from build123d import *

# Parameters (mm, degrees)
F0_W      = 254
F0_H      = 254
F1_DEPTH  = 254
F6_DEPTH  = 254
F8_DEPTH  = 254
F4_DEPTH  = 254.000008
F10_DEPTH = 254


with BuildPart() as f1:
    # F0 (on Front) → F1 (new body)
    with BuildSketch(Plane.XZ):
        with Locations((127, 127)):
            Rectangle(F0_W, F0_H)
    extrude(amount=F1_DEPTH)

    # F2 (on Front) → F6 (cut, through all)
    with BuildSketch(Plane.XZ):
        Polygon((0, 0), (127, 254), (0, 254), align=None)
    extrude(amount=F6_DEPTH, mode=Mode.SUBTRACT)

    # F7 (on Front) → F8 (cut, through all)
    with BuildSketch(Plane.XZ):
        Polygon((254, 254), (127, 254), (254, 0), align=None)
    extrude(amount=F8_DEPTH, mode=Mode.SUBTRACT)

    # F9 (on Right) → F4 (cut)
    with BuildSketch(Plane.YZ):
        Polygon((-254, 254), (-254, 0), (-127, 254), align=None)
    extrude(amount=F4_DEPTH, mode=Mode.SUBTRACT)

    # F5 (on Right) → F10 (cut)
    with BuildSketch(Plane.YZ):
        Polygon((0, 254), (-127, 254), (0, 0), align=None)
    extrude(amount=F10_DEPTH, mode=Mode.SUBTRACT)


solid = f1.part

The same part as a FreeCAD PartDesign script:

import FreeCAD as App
import Part
import Sketcher
Q = App.Units.Quantity

doc = App.newDocument("Part")
params = doc.addObject("Spreadsheet::Sheet", "Params")
for row, (alias, value) in enumerate([
    ("sketch1_width", "10 in"),
    ("pad1_length", "10 in"),
    ("sketch2_width", "5 in"),
    ("sketch2_height", "10 in"),
    ("sketch3_width", "5 in"),
    ("sketch3_height", "10 in"),
    ("sketch4_width", "5 in"),
    ("sketch4_height", "10 in"),
    ("pocket3_length", "254.000008 mm"),
    ("sketch5_width", "5 in"),
    ("sketch5_height", "10 in"),
    ("pocket4_length", "10 in"),
], start=1):
    params.set(f"A{row}", alias)
    params.set(f"B{row}", "=" + value)
    params.setAlias(f"B{row}", alias)

body = doc.addObject("PartDesign::Body", "Body")

sketch1 = body.newObject("Sketcher::SketchObject", "Sketch")
sketch1.AttachmentSupport = (doc.getObject("XZ_Plane"), [""])
sketch1.MapMode = "FlatFace"
sketch1.addGeometry(Part.LineSegment(App.Vector(0, 254, 0), App.Vector(0, 0, 0)), False)
sketch1.addGeometry(Part.LineSegment(App.Vector(0, 0, 0), App.Vector(254, 0, 0)), False)
sketch1.addGeometry(Part.LineSegment(App.Vector(254, 0, 0), App.Vector(254, 254, 0)), False)
sketch1.addGeometry(Part.LineSegment(App.Vector(254, 254, 0), App.Vector(0, 254, 0)), False)
sketch1.addConstraint(Sketcher.Constraint("Coincident", 0, 2, 1, 1))
sketch1.addConstraint(Sketcher.Constraint("Coincident", 1, 2, 2, 1))
sketch1.addConstraint(Sketcher.Constraint("Coincident", 2, 2, 3, 1))
sketch1.addConstraint(Sketcher.Constraint("Coincident", 3, 2, 0, 1))
sketch1.addConstraint(Sketcher.Constraint("Vertical", 0))
sketch1.addConstraint(Sketcher.Constraint("Horizontal", 1))
sketch1.addConstraint(Sketcher.Constraint("Vertical", 2))
sketch1.addConstraint(Sketcher.Constraint("Horizontal", 3))
sketch1.addConstraint(Sketcher.Constraint("Coincident", 0, 2, -1, 1))
sketch1.addConstraint(Sketcher.Constraint("Equal", 3, 0))
sketch1.addConstraint(Sketcher.Constraint("DistanceX", 1, 1, 1, 2, Q("10 in")))
sketch1.setExpression("Constraints[10]", "Params.sketch1_width")
pad1 = body.newObject("PartDesign::Pad", "Pad")
pad1.Profile = sketch1
pad1.setExpression("Length", "Params.pad1_length")

sketch2 = body.newObject("Sketcher::SketchObject", "Sketch001")
sketch2.AttachmentSupport = (doc.getObject("XZ_Plane"), [""])
sketch2.MapMode = "FlatFace"
sketch2.addGeometry(Part.LineSegment(App.Vector(0, 0, 0), App.Vector(127, 254, 0)), False)
sketch2.addGeometry(Part.LineSegment(App.Vector(127, 254, 0), App.Vector(0, 254, 0)), False)
sketch2.addGeometry(Part.LineSegment(App.Vector(0, 254, 0), App.Vector(0, 0, 0)), False)
sketch2.addConstraint(Sketcher.Constraint("Coincident", 0, 2, 1, 1))
sketch2.addConstraint(Sketcher.Constraint("Coincident", 1, 2, 2, 1))
sketch2.addConstraint(Sketcher.Constraint("Coincident", 2, 2, 0, 1))
sketch2.addConstraint(Sketcher.Constraint("Horizontal", 1))
sketch2.addConstraint(Sketcher.Constraint("Vertical", 2))
sketch2.addConstraint(Sketcher.Constraint("Coincident", 2, 2, -1, 1))
sketch2.addConstraint(Sketcher.Constraint("DistanceX", 1, 2, 1, 1, Q("5 in")))
sketch2.addConstraint(Sketcher.Constraint("DistanceY", 2, 2, 2, 1, Q("10 in")))
sketch2.setExpression("Constraints[6]", "Params.sketch2_width")
sketch2.setExpression("Constraints[7]", "Params.sketch2_height")
pocket1 = body.newObject("PartDesign::Pocket", "Pocket")
pocket1.Profile = sketch2
pocket1.Type = "ThroughAll"
pocket1.Reversed = True

sketch3 = body.newObject("Sketcher::SketchObject", "Sketch002")
sketch3.AttachmentSupport = (doc.getObject("XZ_Plane"), [""])
sketch3.MapMode = "FlatFace"
sketch3.addGeometry(Part.LineSegment(App.Vector(254, 254, 0), App.Vector(127, 254, 0)), False)
sketch3.addGeometry(Part.LineSegment(App.Vector(127, 254, 0), App.Vector(254, 0, 0)), False)
sketch3.addGeometry(Part.LineSegment(App.Vector(254, 0, 0), App.Vector(254, 254, 0)), False)
sketch3.addConstraint(Sketcher.Constraint("Coincident", 0, 2, 1, 1))
sketch3.addConstraint(Sketcher.Constraint("Coincident", 1, 2, 2, 1))
sketch3.addConstraint(Sketcher.Constraint("Coincident", 2, 2, 0, 1))
sketch3.addConstraint(Sketcher.Constraint("Horizontal", 0))
sketch3.addConstraint(Sketcher.Constraint("Vertical", 2))
sketch3.addConstraint(Sketcher.Constraint("PointOnObject", 1, 2, -1))
sketch3.addConstraint(Sketcher.Constraint("DistanceX", 0, 2, 0, 1, Q("5 in")))
sketch3.addConstraint(Sketcher.Constraint("DistanceY", 2, 1, 2, 2, Q("10 in")))
sketch3.addConstraint(Sketcher.Constraint("DistanceX", -1, 1, 0, 2, Q("5 in")))
sketch3.setExpression("Constraints[6]", "Params.sketch3_width")
sketch3.setExpression("Constraints[7]", "Params.sketch3_height")
pocket2 = body.newObject("PartDesign::Pocket", "Pocket001")
pocket2.Profile = sketch3
pocket2.Type = "ThroughAll"
pocket2.Reversed = True

sketch4 = body.newObject("Sketcher::SketchObject", "Sketch003")
sketch4.AttachmentSupport = (doc.getObject("YZ_Plane"), [""])
sketch4.MapMode = "FlatFace"
sketch4.addGeometry(Part.LineSegment(App.Vector(-254, 254, 0), App.Vector(-254, 0, 0)), False)
sketch4.addGeometry(Part.LineSegment(App.Vector(-254, 0, 0), App.Vector(-127, 254, 0)), False)
sketch4.addGeometry(Part.LineSegment(App.Vector(-127, 254, 0), App.Vector(-254, 254, 0)), False)
sketch4.addConstraint(Sketcher.Constraint("Coincident", 0, 2, 1, 1))
sketch4.addConstraint(Sketcher.Constraint("Coincident", 1, 2, 2, 1))
sketch4.addConstraint(Sketcher.Constraint("Coincident", 2, 2, 0, 1))
sketch4.addConstraint(Sketcher.Constraint("Vertical", 0))
sketch4.addConstraint(Sketcher.Constraint("Horizontal", 2))
sketch4.addConstraint(Sketcher.Constraint("PointOnObject", 0, 2, -1))
sketch4.addConstraint(Sketcher.Constraint("DistanceX", 2, 2, 2, 1, Q("5 in")))
sketch4.addConstraint(Sketcher.Constraint("DistanceY", 0, 2, 0, 1, Q("10 in")))
sketch4.addConstraint(Sketcher.Constraint("DistanceX", 0, 2, -1, 1, Q("10 in")))
sketch4.setExpression("Constraints[6]", "Params.sketch4_width")
sketch4.setExpression("Constraints[7]", "Params.sketch4_height")
pocket3 = body.newObject("PartDesign::Pocket", "Pocket002")
pocket3.Profile = sketch4
pocket3.setExpression("Length", "Params.pocket3_length")
pocket3.Reversed = True

sketch5 = body.newObject("Sketcher::SketchObject", "Sketch004")
sketch5.AttachmentSupport = (doc.getObject("YZ_Plane"), [""])
sketch5.MapMode = "FlatFace"
sketch5.addGeometry(Part.LineSegment(App.Vector(0, 254, 0), App.Vector(-127, 254, 0)), False)
sketch5.addGeometry(Part.LineSegment(App.Vector(-127, 254, 0), App.Vector(0, 0, 0)), False)
sketch5.addGeometry(Part.LineSegment(App.Vector(0, 0, 0), App.Vector(0, 254, 0)), False)
sketch5.addConstraint(Sketcher.Constraint("Coincident", 0, 2, 1, 1))
sketch5.addConstraint(Sketcher.Constraint("Coincident", 1, 2, 2, 1))
sketch5.addConstraint(Sketcher.Constraint("Coincident", 2, 2, 0, 1))
sketch5.addConstraint(Sketcher.Constraint("Horizontal", 0))
sketch5.addConstraint(Sketcher.Constraint("Vertical", 2))
sketch5.addConstraint(Sketcher.Constraint("Coincident", 1, 2, -1, 1))
sketch5.addConstraint(Sketcher.Constraint("DistanceX", 0, 2, 0, 1, Q("5 in")))
sketch5.addConstraint(Sketcher.Constraint("DistanceY", 2, 1, 2, 2, Q("10 in")))
sketch5.setExpression("Constraints[6]", "Params.sketch5_width")
sketch5.setExpression("Constraints[7]", "Params.sketch5_height")
pocket4 = body.newObject("PartDesign::Pocket", "Pocket003")
pocket4.Profile = sketch5
pocket4.setExpression("Length", "Params.pocket4_length")
pocket4.Reversed = True

doc.recompute()
